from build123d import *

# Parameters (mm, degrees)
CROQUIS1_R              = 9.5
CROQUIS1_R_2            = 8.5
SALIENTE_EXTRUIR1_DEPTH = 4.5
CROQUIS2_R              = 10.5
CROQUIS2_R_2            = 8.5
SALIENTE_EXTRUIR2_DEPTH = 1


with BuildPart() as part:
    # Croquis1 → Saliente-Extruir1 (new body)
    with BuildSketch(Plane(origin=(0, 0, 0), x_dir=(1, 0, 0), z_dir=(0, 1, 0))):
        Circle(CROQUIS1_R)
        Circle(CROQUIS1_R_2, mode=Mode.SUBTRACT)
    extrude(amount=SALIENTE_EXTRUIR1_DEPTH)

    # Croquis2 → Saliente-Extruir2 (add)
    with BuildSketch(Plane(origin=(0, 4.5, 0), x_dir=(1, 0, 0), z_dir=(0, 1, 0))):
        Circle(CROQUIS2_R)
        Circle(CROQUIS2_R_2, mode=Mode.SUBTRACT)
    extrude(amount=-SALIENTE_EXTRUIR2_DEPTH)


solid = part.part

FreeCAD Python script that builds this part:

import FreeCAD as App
import Part
import Sketcher

V = App.Vector

doc = App.newDocument("Part")
body = doc.addObject("PartDesign::Body", "Body")

# Sketch on XZ plane
sketch1 = body.newObject("Sketcher::SketchObject", "Sketch")
sketch1.AttachmentSupport = (doc.getObject("XZ_Plane"), [""])
sketch1.MapMode = "FlatFace"
sketch1.addGeometry([
    Part.Circle(V(0, 0, 0), V(0, 0, 1), 9.5),
    Part.Circle(V(0, 0, 0), V(0, 0, 1), 8.5),
], False)
sketch1.addConstraint([
    Sketcher.Constraint("Coincident", 0, 3, -1, 1),
    Sketcher.Constraint("Coincident", 1, 3, -1, 1),
    Sketcher.Constraint("Diameter", 0, 19.0),
    Sketcher.Constraint("Diameter", 1, 17.0),
])
pad1 = body.newObject("PartDesign::Pad", "Pad")
pad1.Profile = sketch1
pad1.Length = 4.5
pad1.Reversed = True

# Sketch on XZ plane
sketch2 = body.newObject("Sketcher::SketchObject", "Sketch001")
sketch2.AttachmentSupport = (doc.getObject("XZ_Plane"), [""])
sketch2.MapMode = "FlatFace"
sketch2.AttachmentOffset = App.Placement(V(0, 0, -4.5), App.Rotation())
sketch2.addGeometry([
    Part.Circle(V(0, 0, 0), V(0, 0, 1), 10.5),
    Part.Circle(V(0, 0, 0), V(0, 0, 1), 8.5),
], False)
sketch2.addConstraint([
    Sketcher.Constraint("Coincident", 0, 3, -1, 1),
    Sketcher.Constraint("Coincident", 1, 3, -1, 1),
    Sketcher.Constraint("Diameter", 0, 21.0),
    Sketcher.Constraint("Diameter", 1, 17.0),
])
pad2 = body.newObject("PartDesign::Pad", "Pad001")
pad2.Profile = sketch2
pad2.Length = 1

doc.recompute()
